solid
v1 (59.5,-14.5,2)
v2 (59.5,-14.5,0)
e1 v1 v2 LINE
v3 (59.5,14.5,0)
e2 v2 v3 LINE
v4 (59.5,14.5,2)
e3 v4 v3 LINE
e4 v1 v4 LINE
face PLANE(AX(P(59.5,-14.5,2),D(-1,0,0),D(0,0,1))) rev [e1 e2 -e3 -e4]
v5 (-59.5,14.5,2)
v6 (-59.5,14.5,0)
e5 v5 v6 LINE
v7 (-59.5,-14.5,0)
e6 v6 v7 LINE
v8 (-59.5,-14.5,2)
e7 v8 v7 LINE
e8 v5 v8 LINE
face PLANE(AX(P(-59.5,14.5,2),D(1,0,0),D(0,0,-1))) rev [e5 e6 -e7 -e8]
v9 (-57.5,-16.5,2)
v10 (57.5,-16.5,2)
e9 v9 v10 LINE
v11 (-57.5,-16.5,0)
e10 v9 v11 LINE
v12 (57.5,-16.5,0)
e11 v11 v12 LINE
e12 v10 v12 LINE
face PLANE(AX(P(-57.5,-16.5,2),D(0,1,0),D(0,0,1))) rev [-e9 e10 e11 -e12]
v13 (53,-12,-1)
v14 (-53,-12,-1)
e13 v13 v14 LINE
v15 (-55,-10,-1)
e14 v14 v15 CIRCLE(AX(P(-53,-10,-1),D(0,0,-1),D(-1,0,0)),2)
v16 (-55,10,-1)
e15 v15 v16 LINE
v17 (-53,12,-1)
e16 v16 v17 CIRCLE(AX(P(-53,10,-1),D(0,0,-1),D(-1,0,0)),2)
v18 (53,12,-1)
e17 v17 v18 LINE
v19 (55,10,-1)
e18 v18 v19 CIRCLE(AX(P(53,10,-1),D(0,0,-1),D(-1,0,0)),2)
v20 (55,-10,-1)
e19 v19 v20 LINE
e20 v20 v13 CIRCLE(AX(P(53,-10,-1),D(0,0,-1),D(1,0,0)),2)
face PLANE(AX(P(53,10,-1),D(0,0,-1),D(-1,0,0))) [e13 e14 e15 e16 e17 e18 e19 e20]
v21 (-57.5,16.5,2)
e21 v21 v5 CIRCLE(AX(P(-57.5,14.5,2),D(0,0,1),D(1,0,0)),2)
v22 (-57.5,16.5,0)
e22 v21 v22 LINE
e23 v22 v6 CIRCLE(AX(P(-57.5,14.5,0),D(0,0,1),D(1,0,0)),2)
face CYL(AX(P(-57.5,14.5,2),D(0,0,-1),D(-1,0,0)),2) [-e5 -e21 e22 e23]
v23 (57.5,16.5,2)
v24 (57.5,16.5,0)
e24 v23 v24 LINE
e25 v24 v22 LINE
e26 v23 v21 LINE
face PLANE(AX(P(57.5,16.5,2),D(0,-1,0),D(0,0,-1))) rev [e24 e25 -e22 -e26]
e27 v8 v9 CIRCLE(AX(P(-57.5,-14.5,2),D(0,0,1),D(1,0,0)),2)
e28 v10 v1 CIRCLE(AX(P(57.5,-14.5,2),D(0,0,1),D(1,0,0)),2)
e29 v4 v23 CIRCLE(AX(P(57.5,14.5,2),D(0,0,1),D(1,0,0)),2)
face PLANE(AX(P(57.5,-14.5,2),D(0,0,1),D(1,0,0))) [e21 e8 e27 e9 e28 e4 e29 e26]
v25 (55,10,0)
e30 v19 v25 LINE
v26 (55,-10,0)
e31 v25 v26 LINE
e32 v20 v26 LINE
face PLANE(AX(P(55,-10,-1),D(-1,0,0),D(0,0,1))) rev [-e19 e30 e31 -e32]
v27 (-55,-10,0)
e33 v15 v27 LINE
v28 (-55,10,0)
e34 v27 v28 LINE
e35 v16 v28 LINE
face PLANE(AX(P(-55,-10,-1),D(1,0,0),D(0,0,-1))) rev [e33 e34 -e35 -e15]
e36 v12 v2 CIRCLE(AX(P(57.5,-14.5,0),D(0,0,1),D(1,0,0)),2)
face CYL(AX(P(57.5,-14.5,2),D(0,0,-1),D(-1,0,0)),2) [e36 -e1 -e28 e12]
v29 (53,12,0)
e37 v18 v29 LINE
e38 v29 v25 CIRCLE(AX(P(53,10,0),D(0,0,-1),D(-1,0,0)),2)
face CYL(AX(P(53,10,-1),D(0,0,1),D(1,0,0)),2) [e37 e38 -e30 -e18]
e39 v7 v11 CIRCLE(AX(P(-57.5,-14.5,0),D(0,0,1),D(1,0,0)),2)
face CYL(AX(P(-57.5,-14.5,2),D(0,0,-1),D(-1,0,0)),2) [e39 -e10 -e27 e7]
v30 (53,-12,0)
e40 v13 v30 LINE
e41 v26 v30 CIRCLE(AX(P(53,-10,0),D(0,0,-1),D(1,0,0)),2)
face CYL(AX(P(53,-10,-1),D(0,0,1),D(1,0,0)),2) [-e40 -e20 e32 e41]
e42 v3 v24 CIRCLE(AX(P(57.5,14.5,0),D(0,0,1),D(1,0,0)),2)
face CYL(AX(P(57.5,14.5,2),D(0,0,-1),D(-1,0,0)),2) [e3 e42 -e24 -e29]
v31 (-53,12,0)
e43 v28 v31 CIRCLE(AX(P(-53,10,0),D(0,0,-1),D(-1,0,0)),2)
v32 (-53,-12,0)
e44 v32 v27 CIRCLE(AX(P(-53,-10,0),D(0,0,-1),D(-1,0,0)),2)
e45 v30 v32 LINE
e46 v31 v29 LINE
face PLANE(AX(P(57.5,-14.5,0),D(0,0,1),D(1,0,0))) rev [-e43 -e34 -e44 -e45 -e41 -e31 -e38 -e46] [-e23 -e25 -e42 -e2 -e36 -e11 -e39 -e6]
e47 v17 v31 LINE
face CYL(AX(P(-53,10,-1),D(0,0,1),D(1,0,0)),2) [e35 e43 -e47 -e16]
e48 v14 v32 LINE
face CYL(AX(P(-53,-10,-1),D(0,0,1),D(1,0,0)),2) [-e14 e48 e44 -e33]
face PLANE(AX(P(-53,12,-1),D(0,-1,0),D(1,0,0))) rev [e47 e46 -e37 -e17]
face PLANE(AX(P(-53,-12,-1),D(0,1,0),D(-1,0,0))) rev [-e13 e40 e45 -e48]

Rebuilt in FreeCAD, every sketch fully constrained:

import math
import FreeCAD as App
import Part
import Sketcher

doc = App.newDocument("Part")
body = doc.addObject("PartDesign::Body", "Body")

sketch1 = body.newObject("Sketcher::SketchObject", "Sketch")
sketch1.AttachmentSupport = (doc.getObject("XY_Plane"), [""])
sketch1.MapMode = "FlatFace"
sketch1.addGeometry(Part.LineSegment(App.Vector(-57.5, -16.5, 0), App.Vector(57.5, -16.5, 0)), False)
sketch1.addGeometry(Part.ArcOfCircle(Part.Circle(App.Vector(57.5, -14.5, 0), App.Vector(0, 0, 1), 2), math.radians(-90), math.radians(0)), False)
sketch1.addGeometry(Part.LineSegment(App.Vector(59.5, -14.5, 0), App.Vector(59.5, 14.5, 0)), False)
sketch1.addGeometry(Part.ArcOfCircle(Part.Circle(App.Vector(57.5, 14.5, 0), App.Vector(0, 0, 1), 2), math.radians(0), math.radians(90)), False)
sketch1.addGeometry(Part.LineSegment(App.Vector(57.5, 16.5, 0), App.Vector(-57.5, 16.5, 0)), False)
sketch1.addGeometry(Part.ArcOfCircle(Part.Circle(App.Vector(-57.5, 14.5, 0), App.Vector(0, 0, 1), 2), math.radians(90), math.radians(180)), False)
sketch1.addGeometry(Part.LineSegment(App.Vector(-59.5, 14.5, 0), App.Vector(-59.5, -14.5, 0)), False)
sketch1.addGeometry(Part.ArcOfCircle(Part.Circle(App.Vector(-57.5, -14.5, 0), App.Vector(0, 0, 1), 2), math.radians(-180), math.radians(-90)), False)
sketch1.addConstraint(Sketcher.Constraint("Tangent", 0, 2, 1, 1))
sketch1.addConstraint(Sketcher.Constraint("Tangent", 1, 2, 2, 1))
sketch1.addConstraint(Sketcher.Constraint("Tangent", 2, 2, 3, 1))
sketch1.addConstraint(Sketcher.Constraint("Tangent", 3, 2, 4, 1))
sketch1.addConstraint(Sketcher.Constraint("Tangent", 4, 2, 5, 1))
sketch1.addConstraint(Sketcher.Constraint("Tangent", 5, 2, 6, 1))
sketch1.addConstraint(Sketcher.Constraint("Tangent", 6, 2, 7, 1))
sketch1.addConstraint(Sketcher.Constraint("Tangent", 7, 2, 0, 1))
sketch1.addConstraint(Sketcher.Constraint("Horizontal", 0))
sketch1.addConstraint(Sketcher.Constraint("Vertical", 2))
sketch1.addConstraint(Sketcher.Constraint("Horizontal", 4))
sketch1.addConstraint(Sketcher.Constraint("Vertical", 6))
sketch1.addConstraint(Sketcher.Constraint("Equal", 1, 3))
sketch1.addConstraint(Sketcher.Constraint("Equal", 3, 5))
sketch1.addConstraint(Sketcher.Constraint("Equal", 5, 7))
sketch1.addConstraint(Sketcher.Constraint("Symmetric", 1, 3, 5, 3, -1, 1))
sketch1.addConstraint(Sketcher.Constraint("Radius", 1, 2.0))
sketch1.addConstraint(Sketcher.Constraint("DistanceX", 0, 1, 0, 2, 115.0))
sketch1.addConstraint(Sketcher.Constraint("DistanceY", 2, 1, 2, 2, 29.0))
pad1 = body.newObject("PartDesign::Pad", "Pad")
pad1.Profile = sketch1
pad1.Length = 2

sketch2 = body.newObject("Sketcher::SketchObject", "Sketch001")
sketch2.AttachmentSupport = (doc.getObject("XY_Plane"), [""])
sketch2.MapMode = "FlatFace"
sketch2.addGeometry(Part.LineSegment(App.Vector(53, -12, 0), App.Vector(-53, -12, 0)), False)
sketch2.addGeometry(Part.ArcOfCircle(Part.Circle(App.Vector(-53, -10, 0), App.Vector(0, 0, 1), 2), math.radians(-180), math.radians(-90)), False)
sketch2.addGeometry(Part.LineSegment(App.Vector(-55, -10, 0), App.Vector(-55, 10, 0)), False)
sketch2.addGeometry(Part.ArcOfCircle(Part.Circle(App.Vector(-53, 10, 0), App.Vector(0, 0, 1), 2), math.radians(90), math.radians(180)), False)
sketch2.addGeometry(Part.LineSegment(App.Vector(-53, 12, 0), App.Vector(53, 12, 0)), False)
sketch2.addGeometry(Part.ArcOfCircle(Part.Circle(App.Vector(53, 10, 0), App.Vector(0, 0, 1), 2), math.radians(0), math.radians(90)), False)
sketch2.addGeometry(Part.LineSegment(App.Vector(55, 10, 0), App.Vector(55, -10, 0)), False)
sketch2.addGeometry(Part.ArcOfCircle(Part.Circle(App.Vector(53, -10, 0), App.Vector(0, 0, 1), 2), math.radians(-90), math.radians(0)), False)
sketch2.addConstraint(Sketcher.Constraint("Tangent", 0, 2, 1, 2))
sketch2.addConstraint(Sketcher.Constraint("Tangent", 1, 1, 2, 1))
sketch2.addConstraint(Sketcher.Constraint("Tangent", 2, 2, 3, 2))
sketch2.addConstraint(Sketcher.Constraint("Tangent", 3, 1, 4, 1))
sketch2.addConstraint(Sketcher.Constraint("Tangent", 4, 2, 5, 2))
sketch2.addConstraint(Sketcher.Constraint("Tangent", 5, 1, 6, 1))
sketch2.addConstraint(Sketcher.Constraint("Tangent", 6, 2, 7, 2))
sketch2.addConstraint(Sketcher.Constraint("Tangent", 7, 1, 0, 1))
sketch2.addConstraint(Sketcher.Constraint("Horizontal", 0))
sketch2.addConstraint(Sketcher.Constraint("Vertical", 2))
sketch2.addConstraint(Sketcher.Constraint("Horizontal", 4))
sketch2.addConstraint(Sketcher.Constraint("Vertical", 6))
sketch2.addConstraint(Sketcher.Constraint("Equal", 1, 3))
sketch2.addConstraint(Sketcher.Constraint("Equal", 3, 5))
sketch2.addConstraint(Sketcher.Constraint("Equal", 5, 7))
sketch2.addConstraint(Sketcher.Constraint("Symmetric", 1, 3, 5, 3, -1, 1))
sketch2.addConstraint(Sketcher.Constraint("Radius", 1, 2.0))
sketch2.addConstraint(Sketcher.Constraint("DistanceX", 0, 2, 0, 1, 106.0))
sketch2.addConstraint(Sketcher.Constraint("DistanceY", 2, 1, 2, 2, 20.0))
pad2 = body.newObject("PartDesign::Pad", "Pad001")
pad2.Profile = sketch2
pad2.Length = 1
pad2.Reversed = True

doc.recompute()
